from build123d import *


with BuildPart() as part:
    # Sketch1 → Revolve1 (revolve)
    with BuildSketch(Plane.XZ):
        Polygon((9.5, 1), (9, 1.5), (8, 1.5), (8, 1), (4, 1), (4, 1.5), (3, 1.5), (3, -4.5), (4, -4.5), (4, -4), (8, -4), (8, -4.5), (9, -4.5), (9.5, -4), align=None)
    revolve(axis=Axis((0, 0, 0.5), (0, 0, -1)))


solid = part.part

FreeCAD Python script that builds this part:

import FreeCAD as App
import Part
import Sketcher
Q = App.Units.Quantity


def add_polygon(sketch, points):
    """Adds a closed chain of lines whose ends are joined by coincident constraints."""
    first, n = sketch.GeometryCount, len(points)
    for a, b in zip(points, points[1:] + points[:1]):
        sketch.addGeometry(Part.LineSegment(App.Vector(*a, 0), App.Vector(*b, 0)), False)
    for i in range(n):
        sketch.addConstraint(Sketcher.Constraint("Coincident", first + i, 2, first + (i + 1) % n, 1))

doc = App.newDocument("Part")
params = doc.addObject("Spreadsheet::Sheet", "Params")
for row, (alias, value) in enumerate([
    ("sketch1_width", "1 mm"),
    ("sketch1_width2", "4 mm"),
    ("sketch1_height", "6 mm"),
    ("sketch1_height2", "5 mm"),
    ("revolution_angle", "360 deg"),
], start=1):
    params.set(f"A{row}", alias)
    params.set(f"B{row}", "=" + value)
    params.setAlias(f"B{row}", alias)

body = doc.addObject("PartDesign::Body", "Body")

# Sketch on XZ plane
sketch1 = doc.addObject("Sketcher::SketchObject", "Sketch")
body.addObject(sketch1)
sketch1.AttachmentSupport = (doc.XZ_Plane, [""])
sketch1.MapMode = "FlatFace"
add_polygon(sketch1, [(9.5, 1), (9, 1.5), (8, 1.5), (8, 1), (4, 1), (4, 1.5), (3, 1.5), (3, -4.5), (4, -4.5), (4, -4), (8, -4), (8, -4.5), (9, -4.5), (9.5, -4)])  # lines 0-13
sketch1.addConstraint(Sketcher.Constraint("Horizontal", 1))
sketch1.addConstraint(Sketcher.Constraint("Vertical", 2))
sketch1.addConstraint(Sketcher.Constraint("Horizontal", 3))
sketch1.addConstraint(Sketcher.Constraint("Vertical", 4))
sketch1.addConstraint(Sketcher.Constraint("Horizontal", 5))
sketch1.addConstraint(Sketcher.Constraint("Vertical", 6))
sketch1.addConstraint(Sketcher.Constraint("Horizontal", 7))
sketch1.addConstraint(Sketcher.Constraint("Vertical", 8))
sketch1.addConstraint(Sketcher.Constraint("Horizontal", 9))
sketch1.addConstraint(Sketcher.Constraint("Vertical", 10))
sketch1.addConstraint(Sketcher.Constraint("Horizontal", 11))
sketch1.addConstraint(Sketcher.Constraint("Vertical", 13))
sketch1.addConstraint(Sketcher.Constraint("Perpendicular", 0, 12))
sketch1.addConstraint(Sketcher.Constraint("Horizontal", 1, 2, 4, 2))
sketch1.addConstraint(Sketcher.Constraint("Horizontal", 7, 2, 10, 2))
sketch1.addConstraint(Sketcher.Constraint("Horizontal", 9, 2, 12, 2))
sketch1.addConstraint(Sketcher.Constraint("Horizontal", 3, 2, 13, 2))
sketch1.addConstraint(Sketcher.Constraint("Vertical", 4, 2, 7, 2))
sketch1.addConstraint(Sketcher.Constraint("Vertical", 2, 2, 9, 2))
sketch1.addConstraint(Sketcher.Constraint("Vertical", 0, 2, 11, 2))
sketch1.addConstraint(Sketcher.Constraint("Equal", 1, 5))
sketch1.addConstraint(Sketcher.Constraint("Equal", 4, 8))
sketch1.addConstraint(Sketcher.Constraint("DistanceX", 1, 2, 1, 1, Q("1 mm")))
sketch1.addConstraint(Sketcher.Constraint("DistanceX", 3, 2, 3, 1, Q("4 mm")))
sketch1.addConstraint(Sketcher.Constraint("DistanceY", 6, 2, 6, 1, Q("6 mm")))
sketch1.addConstraint(Sketcher.Constraint("DistanceY", 13, 1, 13, 2, Q("5 mm")))
sketch1.addConstraint(Sketcher.Constraint("DistanceX", -1, 1, 0, 2, Q("9 mm")))
sketch1.addConstraint(Sketcher.Constraint("DistanceY", -1, 1, 2, 2, Q("1 mm")))
sketch1.setExpression("Constraints[36]", "Params.sketch1_width")
sketch1.setExpression("Constraints[37]", "Params.sketch1_width2")
sketch1.setExpression("Constraints[38]", "Params.sketch1_height")
sketch1.setExpression("Constraints[39]", "Params.sketch1_height2")
revolution = doc.addObject("PartDesign::Revolution", "Revolution")
body.addObject(revolution)
revolution.Profile = sketch1
revolution.ReferenceAxis = (sketch1, ["V_Axis"])
revolution.setExpression("Angle", "Params.revolution_angle")

doc.recompute()
